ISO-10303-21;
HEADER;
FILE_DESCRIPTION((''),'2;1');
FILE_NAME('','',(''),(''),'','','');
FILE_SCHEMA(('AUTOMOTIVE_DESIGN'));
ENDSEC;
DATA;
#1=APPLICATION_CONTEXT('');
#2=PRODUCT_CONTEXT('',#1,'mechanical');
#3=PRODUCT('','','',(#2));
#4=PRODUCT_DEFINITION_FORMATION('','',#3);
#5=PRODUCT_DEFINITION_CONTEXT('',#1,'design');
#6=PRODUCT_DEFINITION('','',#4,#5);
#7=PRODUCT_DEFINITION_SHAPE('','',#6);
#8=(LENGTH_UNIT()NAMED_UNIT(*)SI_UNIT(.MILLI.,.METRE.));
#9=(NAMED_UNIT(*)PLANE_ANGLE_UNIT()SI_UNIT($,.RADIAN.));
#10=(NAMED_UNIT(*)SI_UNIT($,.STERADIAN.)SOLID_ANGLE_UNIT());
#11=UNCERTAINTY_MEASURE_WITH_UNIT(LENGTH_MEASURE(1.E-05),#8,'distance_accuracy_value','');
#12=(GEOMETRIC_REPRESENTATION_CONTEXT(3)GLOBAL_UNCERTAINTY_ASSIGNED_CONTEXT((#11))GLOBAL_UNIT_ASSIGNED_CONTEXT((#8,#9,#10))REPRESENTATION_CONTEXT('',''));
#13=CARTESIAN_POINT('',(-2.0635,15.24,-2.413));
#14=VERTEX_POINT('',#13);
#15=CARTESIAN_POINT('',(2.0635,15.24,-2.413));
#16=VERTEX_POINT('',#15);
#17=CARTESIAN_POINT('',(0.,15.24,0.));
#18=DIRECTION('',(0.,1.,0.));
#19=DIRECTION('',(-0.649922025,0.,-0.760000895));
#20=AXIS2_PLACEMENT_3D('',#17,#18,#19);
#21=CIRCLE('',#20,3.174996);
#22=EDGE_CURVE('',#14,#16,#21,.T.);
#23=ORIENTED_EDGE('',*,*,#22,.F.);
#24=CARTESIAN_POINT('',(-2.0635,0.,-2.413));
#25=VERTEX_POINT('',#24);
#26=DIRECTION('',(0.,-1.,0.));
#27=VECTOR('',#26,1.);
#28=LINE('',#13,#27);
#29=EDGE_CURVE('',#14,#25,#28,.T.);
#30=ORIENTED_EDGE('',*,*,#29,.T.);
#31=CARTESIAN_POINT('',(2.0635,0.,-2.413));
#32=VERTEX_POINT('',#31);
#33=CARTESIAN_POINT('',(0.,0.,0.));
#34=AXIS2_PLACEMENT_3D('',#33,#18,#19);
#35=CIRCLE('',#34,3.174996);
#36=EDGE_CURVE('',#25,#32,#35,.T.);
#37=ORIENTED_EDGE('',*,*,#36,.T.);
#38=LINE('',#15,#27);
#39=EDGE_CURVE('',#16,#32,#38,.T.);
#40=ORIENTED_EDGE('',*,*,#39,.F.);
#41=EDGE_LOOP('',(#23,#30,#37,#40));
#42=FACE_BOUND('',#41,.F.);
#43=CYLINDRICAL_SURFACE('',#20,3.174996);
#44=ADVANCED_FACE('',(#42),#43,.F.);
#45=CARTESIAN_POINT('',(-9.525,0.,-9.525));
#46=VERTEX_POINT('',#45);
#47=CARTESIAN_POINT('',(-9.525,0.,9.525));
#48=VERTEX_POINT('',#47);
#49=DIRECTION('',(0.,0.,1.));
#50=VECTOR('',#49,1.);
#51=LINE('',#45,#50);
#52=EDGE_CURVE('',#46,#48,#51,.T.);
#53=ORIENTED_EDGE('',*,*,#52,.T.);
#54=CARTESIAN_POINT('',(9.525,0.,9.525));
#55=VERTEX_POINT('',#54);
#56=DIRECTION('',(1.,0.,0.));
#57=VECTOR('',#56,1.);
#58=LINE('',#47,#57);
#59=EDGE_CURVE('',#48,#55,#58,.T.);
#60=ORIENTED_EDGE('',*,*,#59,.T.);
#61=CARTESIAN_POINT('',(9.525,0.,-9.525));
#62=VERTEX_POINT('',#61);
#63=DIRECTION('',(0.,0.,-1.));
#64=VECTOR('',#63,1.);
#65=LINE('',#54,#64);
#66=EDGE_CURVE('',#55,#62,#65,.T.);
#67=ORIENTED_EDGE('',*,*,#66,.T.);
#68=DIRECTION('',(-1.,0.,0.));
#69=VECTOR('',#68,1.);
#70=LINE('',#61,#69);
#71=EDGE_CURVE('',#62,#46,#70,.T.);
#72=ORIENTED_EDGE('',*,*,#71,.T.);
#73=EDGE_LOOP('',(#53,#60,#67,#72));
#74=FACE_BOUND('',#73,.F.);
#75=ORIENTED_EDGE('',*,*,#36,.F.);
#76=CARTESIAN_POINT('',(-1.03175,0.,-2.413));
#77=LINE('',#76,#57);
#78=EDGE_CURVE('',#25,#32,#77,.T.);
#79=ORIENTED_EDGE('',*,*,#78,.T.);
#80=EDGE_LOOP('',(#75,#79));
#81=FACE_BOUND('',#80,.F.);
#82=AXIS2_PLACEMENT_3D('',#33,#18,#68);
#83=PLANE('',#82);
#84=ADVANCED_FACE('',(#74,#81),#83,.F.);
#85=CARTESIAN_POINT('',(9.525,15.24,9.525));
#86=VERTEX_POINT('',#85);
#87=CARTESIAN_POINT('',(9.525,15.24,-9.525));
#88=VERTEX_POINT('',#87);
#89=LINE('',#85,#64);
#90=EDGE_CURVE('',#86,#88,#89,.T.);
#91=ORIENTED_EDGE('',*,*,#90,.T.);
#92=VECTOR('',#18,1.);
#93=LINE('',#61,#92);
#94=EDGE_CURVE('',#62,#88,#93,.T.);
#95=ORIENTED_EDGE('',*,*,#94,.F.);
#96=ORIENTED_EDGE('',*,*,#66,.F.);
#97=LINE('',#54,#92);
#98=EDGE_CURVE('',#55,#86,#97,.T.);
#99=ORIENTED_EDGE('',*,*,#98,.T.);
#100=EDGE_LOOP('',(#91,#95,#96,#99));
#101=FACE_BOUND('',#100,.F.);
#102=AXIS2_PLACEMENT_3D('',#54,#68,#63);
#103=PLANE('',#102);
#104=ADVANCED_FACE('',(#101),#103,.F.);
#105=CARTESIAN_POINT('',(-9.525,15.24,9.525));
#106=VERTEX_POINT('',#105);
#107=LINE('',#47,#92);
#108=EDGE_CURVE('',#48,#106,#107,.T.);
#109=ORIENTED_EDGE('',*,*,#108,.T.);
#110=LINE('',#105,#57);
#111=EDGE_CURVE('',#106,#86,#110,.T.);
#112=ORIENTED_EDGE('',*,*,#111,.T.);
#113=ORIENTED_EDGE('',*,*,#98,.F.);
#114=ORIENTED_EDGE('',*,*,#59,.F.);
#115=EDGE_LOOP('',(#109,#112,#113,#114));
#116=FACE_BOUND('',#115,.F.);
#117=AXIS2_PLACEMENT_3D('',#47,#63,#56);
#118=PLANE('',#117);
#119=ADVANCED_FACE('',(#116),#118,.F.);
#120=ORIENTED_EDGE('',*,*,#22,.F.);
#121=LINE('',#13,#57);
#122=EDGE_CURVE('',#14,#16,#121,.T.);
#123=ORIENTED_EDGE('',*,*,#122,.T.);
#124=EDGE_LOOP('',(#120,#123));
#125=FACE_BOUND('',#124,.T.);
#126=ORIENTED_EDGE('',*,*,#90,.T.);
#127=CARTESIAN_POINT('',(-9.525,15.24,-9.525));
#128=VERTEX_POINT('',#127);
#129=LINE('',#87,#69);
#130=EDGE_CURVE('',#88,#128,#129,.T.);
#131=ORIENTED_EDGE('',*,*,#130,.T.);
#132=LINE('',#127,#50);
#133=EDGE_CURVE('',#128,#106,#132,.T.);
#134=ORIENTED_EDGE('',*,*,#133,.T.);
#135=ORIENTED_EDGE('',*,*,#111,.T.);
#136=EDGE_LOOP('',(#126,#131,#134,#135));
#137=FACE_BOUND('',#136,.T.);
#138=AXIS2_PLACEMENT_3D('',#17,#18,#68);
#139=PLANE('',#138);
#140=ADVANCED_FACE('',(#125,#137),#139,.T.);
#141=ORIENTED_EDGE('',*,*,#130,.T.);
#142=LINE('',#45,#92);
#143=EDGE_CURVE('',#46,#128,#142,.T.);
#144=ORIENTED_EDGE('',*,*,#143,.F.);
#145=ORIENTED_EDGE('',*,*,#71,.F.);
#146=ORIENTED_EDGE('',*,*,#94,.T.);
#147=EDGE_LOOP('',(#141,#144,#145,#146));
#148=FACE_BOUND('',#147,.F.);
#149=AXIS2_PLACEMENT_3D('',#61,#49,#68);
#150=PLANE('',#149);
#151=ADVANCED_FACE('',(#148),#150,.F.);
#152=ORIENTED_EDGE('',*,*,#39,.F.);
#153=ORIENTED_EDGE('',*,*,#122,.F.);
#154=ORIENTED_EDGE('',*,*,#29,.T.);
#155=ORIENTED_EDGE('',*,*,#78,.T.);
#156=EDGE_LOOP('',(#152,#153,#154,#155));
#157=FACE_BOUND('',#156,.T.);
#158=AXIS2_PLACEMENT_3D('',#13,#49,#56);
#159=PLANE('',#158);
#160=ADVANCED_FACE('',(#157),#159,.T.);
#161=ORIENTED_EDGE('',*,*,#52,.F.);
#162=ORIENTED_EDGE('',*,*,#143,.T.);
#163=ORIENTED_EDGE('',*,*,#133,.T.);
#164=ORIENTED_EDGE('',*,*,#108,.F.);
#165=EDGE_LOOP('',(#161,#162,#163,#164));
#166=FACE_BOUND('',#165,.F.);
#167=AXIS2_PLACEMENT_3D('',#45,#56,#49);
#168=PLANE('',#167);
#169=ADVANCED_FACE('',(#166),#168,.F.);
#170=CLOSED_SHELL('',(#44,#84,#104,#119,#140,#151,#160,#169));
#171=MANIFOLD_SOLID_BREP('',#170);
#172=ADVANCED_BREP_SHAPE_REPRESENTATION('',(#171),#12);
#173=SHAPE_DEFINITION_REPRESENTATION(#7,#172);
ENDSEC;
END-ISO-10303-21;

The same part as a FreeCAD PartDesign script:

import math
import FreeCAD as App
import Part
import Sketcher

V = App.Vector
Q = App.Units.Quantity


def add_polygon(sketch, points):
    """Adds a closed chain of lines whose ends are joined by coincident constraints."""
    first, n = sketch.GeometryCount, len(points)
    for a, b in zip(points, points[1:] + points[:1]):
        sketch.addGeometry(Part.LineSegment(App.Vector(*a, 0), App.Vector(*b, 0)), False)
    for i in range(n):
        sketch.addConstraint(Sketcher.Constraint("Coincident", first + i, 2, first + (i + 1) % n, 1))

doc = App.newDocument("Part")
body = doc.addObject("PartDesign::Body", "Body")

# Sketch on XZ plane
sketch1 = body.newObject("Sketcher::SketchObject", "Sketch")
sketch1.AttachmentSupport = (doc.getObject("XZ_Plane"), [""])
sketch1.MapMode = "FlatFace"
add_polygon(sketch1, [(10, 10), (10, -10), (-10, -10), (-10, 10)])  # lines 0-3
sketch1.addConstraint([
    Sketcher.Constraint("Vertical", 0),
    Sketcher.Constraint("Horizontal", 1),
    Sketcher.Constraint("Vertical", 2),
    Sketcher.Constraint("Horizontal", 3),
    Sketcher.Constraint("Symmetric", 0, 2, 2, 2, -1, 1),
    Sketcher.Constraint("Equal", 3, 0),
    Sketcher.Constraint("DistanceX", 1, 2, 1, 1, Q("0.75 in")),
])
pad1 = body.newObject("PartDesign::Pad", "Pad")
pad1.Profile = sketch1
pad1.Length = Q("0.6 in")
pad1.Reversed = True

# Sketch on XZ plane
sketch2 = body.newObject("Sketcher::SketchObject", "Sketch001")
sketch2.AttachmentSupport = (doc.getObject("XZ_Plane"), [""])
sketch2.MapMode = "FlatFace"
sketch2.AttachmentOffset = App.Placement(V(0, 0, -0.6 * 25.4), App.Rotation())
sketch2.addGeometry([
    Part.LineSegment(V(2.1, -2.4, 0), V(-2.1, -2.4, 0)),
    Part.ArcOfCircle(Part.Circle(V(0, 0, 0), V(0, 0, 1), 3.2), math.radians(-49), math.radians(229)),
], False)
sketch2.addConstraint([
    Sketcher.Constraint("Coincident", 0, 1, 1, 1),
    Sketcher.Constraint("Coincident", 1, 2, 0, 2),
    Sketcher.Constraint("Horizontal", 0),
    Sketcher.Constraint("Coincident", 1, 3, -1, 1),
    Sketcher.Constraint("Radius", 1, Q("0.125 in")),
    Sketcher.Constraint("DistanceY", 0, 1, -1, 1, Q("0.095 in")),
])
pocket1 = body.newObject("PartDesign::Pocket", "Pocket")
pocket1.Profile = sketch2
pocket1.Type = "ThroughAll"
pocket1.Reversed = True

doc.recompute()
